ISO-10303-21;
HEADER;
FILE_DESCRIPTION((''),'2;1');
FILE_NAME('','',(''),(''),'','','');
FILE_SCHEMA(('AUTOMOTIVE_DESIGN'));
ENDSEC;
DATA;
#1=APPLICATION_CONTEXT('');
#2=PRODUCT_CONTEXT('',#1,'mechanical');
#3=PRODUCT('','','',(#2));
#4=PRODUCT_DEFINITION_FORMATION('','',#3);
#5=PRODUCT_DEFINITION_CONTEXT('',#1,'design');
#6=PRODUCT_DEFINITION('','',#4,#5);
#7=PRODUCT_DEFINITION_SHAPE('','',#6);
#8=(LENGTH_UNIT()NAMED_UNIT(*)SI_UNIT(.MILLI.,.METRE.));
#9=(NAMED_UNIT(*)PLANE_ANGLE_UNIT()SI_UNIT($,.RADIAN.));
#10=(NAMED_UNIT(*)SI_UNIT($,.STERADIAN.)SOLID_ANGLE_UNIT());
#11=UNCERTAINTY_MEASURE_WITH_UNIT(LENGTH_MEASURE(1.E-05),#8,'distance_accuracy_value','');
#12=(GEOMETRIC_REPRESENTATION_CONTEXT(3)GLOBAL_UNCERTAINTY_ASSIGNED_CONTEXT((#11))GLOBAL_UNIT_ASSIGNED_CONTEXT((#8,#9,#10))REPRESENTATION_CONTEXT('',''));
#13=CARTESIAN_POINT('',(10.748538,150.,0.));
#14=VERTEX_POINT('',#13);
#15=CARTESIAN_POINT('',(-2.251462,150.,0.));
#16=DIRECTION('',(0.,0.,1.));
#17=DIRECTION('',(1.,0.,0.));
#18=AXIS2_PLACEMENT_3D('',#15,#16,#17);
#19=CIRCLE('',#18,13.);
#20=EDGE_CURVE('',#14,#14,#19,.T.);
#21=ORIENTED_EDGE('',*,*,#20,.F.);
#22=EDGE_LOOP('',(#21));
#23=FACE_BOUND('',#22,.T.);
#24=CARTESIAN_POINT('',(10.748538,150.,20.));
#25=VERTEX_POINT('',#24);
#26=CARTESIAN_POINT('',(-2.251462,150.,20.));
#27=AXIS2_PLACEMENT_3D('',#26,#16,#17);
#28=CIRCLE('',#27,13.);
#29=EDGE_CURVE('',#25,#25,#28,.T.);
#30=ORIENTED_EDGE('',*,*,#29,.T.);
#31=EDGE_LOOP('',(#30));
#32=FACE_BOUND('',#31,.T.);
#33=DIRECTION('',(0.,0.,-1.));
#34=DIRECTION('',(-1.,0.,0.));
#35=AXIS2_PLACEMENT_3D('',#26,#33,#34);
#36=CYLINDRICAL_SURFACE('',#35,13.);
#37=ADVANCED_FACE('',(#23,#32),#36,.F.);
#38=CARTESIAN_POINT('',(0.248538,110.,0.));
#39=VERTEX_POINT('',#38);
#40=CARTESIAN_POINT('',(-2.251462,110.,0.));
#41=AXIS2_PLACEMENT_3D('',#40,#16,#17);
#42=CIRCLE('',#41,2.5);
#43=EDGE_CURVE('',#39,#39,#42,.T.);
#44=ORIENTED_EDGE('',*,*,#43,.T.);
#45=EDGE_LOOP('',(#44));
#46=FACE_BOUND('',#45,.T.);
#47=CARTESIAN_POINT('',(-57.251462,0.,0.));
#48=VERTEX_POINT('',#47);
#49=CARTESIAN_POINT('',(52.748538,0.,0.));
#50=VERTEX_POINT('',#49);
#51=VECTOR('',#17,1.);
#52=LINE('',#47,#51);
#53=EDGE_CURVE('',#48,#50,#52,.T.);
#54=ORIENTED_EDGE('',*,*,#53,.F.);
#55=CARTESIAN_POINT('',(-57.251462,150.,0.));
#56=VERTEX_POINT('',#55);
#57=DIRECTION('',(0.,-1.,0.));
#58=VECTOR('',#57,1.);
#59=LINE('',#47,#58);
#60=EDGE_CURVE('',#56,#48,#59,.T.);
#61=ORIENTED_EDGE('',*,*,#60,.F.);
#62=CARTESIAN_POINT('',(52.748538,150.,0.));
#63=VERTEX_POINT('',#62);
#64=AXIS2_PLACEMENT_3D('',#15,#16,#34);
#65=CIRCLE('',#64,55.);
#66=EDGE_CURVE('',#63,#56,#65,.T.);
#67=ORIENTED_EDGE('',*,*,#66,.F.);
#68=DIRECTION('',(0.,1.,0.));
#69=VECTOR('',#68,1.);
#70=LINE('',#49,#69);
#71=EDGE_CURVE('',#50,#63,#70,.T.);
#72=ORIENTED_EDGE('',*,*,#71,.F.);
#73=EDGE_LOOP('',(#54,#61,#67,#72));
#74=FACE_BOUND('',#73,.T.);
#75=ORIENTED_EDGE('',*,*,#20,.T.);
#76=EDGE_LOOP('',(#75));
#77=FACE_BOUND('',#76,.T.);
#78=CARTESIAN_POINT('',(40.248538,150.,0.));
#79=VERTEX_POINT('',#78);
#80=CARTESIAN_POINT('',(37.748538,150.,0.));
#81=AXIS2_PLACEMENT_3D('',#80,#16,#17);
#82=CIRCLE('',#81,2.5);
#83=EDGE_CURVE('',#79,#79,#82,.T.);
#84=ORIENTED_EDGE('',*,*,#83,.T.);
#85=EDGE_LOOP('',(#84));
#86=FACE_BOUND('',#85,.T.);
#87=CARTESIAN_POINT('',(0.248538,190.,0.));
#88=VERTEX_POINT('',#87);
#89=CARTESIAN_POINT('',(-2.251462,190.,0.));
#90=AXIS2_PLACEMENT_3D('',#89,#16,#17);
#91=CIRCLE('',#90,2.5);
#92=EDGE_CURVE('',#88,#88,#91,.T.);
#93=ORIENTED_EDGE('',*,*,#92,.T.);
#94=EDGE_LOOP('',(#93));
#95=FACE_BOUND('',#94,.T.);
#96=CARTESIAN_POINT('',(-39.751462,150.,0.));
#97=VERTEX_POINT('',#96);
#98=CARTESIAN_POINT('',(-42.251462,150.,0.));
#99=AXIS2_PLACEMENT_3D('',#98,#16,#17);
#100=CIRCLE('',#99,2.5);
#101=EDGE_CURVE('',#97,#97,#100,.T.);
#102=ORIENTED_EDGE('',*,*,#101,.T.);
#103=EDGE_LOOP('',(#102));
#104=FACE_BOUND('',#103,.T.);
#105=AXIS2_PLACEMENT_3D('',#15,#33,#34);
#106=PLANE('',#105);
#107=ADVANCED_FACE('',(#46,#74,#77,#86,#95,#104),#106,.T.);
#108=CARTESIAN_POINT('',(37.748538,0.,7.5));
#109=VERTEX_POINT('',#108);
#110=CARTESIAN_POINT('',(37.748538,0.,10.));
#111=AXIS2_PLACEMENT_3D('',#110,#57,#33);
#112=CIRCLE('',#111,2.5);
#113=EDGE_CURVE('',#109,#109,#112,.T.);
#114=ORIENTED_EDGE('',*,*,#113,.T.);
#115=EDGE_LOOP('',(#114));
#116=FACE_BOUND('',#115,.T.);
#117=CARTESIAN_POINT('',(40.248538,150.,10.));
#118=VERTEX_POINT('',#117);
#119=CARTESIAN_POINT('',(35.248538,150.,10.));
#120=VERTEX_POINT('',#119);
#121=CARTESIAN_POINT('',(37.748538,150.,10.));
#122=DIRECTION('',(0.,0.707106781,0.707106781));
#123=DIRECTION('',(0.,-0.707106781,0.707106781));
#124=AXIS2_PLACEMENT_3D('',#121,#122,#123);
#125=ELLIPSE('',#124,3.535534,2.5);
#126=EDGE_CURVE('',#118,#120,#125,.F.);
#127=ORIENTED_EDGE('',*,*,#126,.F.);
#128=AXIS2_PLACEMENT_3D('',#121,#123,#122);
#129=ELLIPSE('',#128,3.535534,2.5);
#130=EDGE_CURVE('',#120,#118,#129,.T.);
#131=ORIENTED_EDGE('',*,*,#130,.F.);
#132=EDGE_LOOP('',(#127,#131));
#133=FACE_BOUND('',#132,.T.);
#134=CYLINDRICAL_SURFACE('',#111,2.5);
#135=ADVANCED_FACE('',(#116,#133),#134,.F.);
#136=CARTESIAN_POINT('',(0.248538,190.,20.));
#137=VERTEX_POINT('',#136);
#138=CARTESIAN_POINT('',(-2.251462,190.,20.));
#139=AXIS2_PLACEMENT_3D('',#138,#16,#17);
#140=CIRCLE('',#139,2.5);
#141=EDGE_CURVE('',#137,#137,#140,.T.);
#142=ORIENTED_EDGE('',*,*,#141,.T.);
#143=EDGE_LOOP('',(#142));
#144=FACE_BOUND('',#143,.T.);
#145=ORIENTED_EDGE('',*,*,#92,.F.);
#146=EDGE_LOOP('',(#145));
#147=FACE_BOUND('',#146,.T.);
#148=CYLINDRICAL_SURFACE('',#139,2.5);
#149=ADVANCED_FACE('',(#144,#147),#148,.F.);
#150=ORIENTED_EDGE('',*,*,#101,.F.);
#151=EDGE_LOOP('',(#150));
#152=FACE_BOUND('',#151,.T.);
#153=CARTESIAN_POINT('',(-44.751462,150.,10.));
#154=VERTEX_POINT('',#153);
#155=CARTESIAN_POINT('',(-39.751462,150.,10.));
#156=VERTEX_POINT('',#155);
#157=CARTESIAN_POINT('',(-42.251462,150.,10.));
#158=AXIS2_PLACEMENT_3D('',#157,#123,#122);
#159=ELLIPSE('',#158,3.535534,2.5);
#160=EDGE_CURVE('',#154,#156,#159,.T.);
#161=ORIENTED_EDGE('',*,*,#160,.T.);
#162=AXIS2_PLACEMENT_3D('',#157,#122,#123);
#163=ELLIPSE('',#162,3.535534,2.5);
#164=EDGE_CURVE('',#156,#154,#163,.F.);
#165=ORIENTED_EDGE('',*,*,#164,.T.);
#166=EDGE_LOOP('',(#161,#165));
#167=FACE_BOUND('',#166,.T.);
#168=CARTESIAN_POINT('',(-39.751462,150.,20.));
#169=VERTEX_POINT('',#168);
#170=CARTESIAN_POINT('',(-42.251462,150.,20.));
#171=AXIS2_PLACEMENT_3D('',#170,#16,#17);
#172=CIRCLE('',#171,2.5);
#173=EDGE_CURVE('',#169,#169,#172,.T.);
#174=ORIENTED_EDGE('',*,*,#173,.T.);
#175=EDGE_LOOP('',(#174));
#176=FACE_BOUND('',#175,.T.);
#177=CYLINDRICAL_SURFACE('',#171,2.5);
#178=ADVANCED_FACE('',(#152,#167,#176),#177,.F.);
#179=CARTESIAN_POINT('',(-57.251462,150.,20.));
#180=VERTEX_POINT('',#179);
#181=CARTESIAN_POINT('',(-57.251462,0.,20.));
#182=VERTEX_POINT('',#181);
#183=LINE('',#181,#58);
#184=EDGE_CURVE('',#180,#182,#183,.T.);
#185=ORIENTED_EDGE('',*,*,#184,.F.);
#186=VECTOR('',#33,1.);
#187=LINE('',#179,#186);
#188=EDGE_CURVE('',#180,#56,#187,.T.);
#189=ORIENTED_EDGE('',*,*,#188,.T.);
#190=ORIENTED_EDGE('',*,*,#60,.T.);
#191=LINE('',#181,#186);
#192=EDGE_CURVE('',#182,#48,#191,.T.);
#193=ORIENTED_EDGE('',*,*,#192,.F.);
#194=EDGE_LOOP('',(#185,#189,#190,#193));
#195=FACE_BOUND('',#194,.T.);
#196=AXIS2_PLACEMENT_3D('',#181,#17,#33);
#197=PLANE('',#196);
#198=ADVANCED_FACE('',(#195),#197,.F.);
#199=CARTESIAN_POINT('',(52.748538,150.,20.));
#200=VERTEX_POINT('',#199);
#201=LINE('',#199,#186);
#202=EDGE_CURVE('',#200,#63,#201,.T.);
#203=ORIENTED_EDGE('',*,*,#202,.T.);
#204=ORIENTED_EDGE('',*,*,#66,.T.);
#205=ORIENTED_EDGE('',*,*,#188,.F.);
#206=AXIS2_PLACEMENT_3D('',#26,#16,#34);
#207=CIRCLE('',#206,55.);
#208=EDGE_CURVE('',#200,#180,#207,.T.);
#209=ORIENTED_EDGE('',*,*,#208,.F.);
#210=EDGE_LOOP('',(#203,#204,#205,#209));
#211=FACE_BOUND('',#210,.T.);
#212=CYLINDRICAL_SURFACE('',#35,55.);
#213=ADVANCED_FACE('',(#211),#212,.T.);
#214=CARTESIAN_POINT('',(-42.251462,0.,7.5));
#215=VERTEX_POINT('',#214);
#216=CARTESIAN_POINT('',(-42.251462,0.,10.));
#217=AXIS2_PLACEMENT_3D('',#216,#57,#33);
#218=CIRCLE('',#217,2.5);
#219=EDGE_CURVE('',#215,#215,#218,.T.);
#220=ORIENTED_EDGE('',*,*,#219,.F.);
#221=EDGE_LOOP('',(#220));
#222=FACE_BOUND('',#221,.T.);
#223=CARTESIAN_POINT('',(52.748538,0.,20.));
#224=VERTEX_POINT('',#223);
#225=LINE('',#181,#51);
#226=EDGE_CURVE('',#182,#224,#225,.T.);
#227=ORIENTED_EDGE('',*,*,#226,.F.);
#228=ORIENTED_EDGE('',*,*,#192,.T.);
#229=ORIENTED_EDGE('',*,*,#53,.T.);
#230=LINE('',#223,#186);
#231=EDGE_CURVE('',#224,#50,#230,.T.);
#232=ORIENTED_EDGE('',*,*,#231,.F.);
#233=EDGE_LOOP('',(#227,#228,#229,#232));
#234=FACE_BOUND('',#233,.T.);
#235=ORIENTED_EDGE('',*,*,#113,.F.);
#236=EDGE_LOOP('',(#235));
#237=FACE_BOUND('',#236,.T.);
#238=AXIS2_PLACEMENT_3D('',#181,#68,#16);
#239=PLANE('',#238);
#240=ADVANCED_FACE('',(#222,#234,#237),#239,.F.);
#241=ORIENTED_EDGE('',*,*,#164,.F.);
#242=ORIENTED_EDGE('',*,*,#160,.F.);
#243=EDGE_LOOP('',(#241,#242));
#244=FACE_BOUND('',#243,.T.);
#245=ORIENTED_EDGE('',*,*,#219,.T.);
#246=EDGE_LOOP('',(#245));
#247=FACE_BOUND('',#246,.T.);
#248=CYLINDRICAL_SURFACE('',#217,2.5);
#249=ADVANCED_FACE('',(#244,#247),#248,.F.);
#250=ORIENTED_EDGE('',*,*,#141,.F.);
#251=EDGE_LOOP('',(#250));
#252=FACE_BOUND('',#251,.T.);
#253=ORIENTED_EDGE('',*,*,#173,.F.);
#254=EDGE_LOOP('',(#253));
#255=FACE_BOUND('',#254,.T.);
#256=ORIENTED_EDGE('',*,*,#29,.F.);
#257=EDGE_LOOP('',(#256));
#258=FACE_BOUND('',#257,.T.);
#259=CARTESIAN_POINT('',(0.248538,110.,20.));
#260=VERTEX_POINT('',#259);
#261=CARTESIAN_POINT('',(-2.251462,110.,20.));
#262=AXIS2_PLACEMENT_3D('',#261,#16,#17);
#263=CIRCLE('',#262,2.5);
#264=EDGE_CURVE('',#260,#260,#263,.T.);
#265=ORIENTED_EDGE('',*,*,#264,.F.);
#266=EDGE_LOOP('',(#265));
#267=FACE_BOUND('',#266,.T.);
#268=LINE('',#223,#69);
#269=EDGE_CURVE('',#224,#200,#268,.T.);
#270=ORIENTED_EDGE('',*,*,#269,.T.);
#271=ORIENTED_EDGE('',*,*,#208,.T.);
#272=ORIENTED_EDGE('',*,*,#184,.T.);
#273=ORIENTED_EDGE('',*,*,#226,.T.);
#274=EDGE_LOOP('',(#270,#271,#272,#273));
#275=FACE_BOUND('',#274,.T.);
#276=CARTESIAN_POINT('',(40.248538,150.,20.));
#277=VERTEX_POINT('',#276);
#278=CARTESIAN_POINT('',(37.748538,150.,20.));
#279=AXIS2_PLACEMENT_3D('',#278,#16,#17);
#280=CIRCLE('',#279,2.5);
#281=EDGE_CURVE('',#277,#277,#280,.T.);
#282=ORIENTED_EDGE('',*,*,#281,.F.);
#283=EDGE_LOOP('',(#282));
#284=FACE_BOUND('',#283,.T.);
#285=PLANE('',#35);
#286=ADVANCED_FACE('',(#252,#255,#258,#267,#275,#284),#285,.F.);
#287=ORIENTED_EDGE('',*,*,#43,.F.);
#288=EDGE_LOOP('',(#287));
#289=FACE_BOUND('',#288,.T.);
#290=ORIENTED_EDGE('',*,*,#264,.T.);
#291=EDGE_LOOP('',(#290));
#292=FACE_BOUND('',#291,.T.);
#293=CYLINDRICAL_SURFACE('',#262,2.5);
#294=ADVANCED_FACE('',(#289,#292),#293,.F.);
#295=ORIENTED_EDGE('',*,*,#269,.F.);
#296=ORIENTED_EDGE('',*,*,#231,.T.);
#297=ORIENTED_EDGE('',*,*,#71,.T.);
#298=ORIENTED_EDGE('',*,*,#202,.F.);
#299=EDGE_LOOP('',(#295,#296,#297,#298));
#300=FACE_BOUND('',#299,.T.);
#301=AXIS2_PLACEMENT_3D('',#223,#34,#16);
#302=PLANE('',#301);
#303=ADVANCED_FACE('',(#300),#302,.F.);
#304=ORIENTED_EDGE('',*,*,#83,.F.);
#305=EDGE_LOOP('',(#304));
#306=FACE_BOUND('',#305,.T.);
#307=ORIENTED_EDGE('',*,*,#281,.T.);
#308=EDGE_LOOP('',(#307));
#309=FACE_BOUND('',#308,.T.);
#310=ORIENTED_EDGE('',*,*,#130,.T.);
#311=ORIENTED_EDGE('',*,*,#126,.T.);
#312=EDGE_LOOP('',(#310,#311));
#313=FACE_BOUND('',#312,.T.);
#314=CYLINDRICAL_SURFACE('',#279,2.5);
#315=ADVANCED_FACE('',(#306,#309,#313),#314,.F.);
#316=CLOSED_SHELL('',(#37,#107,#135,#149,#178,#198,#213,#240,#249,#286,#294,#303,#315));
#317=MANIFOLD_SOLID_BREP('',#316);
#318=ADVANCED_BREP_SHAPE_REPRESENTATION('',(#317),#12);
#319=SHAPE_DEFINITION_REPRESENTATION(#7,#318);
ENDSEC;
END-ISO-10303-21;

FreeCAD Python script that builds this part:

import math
import FreeCAD as App
import Part
import Sketcher

V = App.Vector
Q = App.Units.Quantity

doc = App.newDocument("Part")
body = doc.addObject("PartDesign::Body", "Body")

sketch1 = body.newObject("Sketcher::SketchObject", "Sketch")
sketch1.AttachmentSupport = (doc.getObject("XY_Plane"), [""])
sketch1.MapMode = "FlatFace"
sketch1.addGeometry([
    Part.LineSegment(V(-57, 0, 0), V(53, 0, 0)),
    Part.LineSegment(V(53, 0, 0), V(53, 150, 0)),
    Part.ArcOfCircle(Part.Circle(V(-2, 150, 0), V(0, 0, 1), 55), math.radians(0), math.radians(180)),
    Part.LineSegment(V(-57, 150, 0), V(-57, 0, 0)),
    Part.Circle(V(-2, 150, 0), V(0, 0, 1), 13),
], False)
sketch1.addConstraint([
    Sketcher.Constraint("Coincident", 0, 2, 1, 1),
    Sketcher.Constraint("Tangent", 1, 2, 2, 1),
    Sketcher.Constraint("Tangent", 2, 2, 3, 1),
    Sketcher.Constraint("Coincident", 3, 2, 0, 1),
    Sketcher.Constraint("Horizontal", 0),
    Sketcher.Constraint("Vertical", 1),
    Sketcher.Constraint("Vertical", 3),
    Sketcher.Constraint("Coincident", 4, 3, 2, 3),
    Sketcher.Constraint("PointOnObject", 0, 2, -1),
    Sketcher.Constraint("Diameter", 4, Q("26 mm")),
    Sketcher.Constraint("Radius", 2, Q("55 mm")),
    Sketcher.Constraint("DistanceY", 1, 1, 1, 2, Q("150 mm")),
    Sketcher.Constraint("DistanceX", 2, 3, -1, 1, Q("2.251462 mm")),
])
pad1 = body.newObject("PartDesign::Pad", "Pad")
pad1.Profile = sketch1
pad1.Length = 20

sketch2 = body.newObject("Sketcher::SketchObject", "Sketch001")
sketch2.AttachmentSupport = (doc.getObject("XY_Plane"), [""])
sketch2.MapMode = "FlatFace"
sketch2.AttachmentOffset = App.Placement(V(0, 0, 20), App.Rotation())
sketch2.addGeometry([
    Part.Circle(V(-2.3, 190, 0), V(0, 0, 1), 2.5),
    Part.Circle(V(37.7, 150, 0), V(0, 0, 1), 2.5),
    Part.Circle(V(-2.3, 110, 0), V(0, 0, 1), 2.5),
    Part.Circle(V(-42.3, 150, 0), V(0, 0, 1), 2.5),
], False)
sketch2.addConstraint([
    Sketcher.Constraint("Equal", 0, 1),
    Sketcher.Constraint("Equal", 1, 2),
    Sketcher.Constraint("Equal", 2, 3),
    Sketcher.Constraint("Horizontal", 1, 3, 3, 3),
    Sketcher.Constraint("Vertical", 0, 3, 2, 3),
    Sketcher.Constraint("Diameter", 0, Q("5 mm")),
    Sketcher.Constraint("DistanceY", -1, 1, 0, 3, Q("190 mm")),
    Sketcher.Constraint("DistanceY", -1, 1, 1, 3, Q("150 mm")),
    Sketcher.Constraint("DistanceY", -1, 1, 2, 3, Q("110 mm")),
    Sketcher.Constraint("DistanceX", 0, 3, 1, 3, Q("40 mm")),
    Sketcher.Constraint("DistanceX", 3, 3, 0, 3, Q("40 mm")),
    Sketcher.Constraint("DistanceX", 0, 3, -1, 1, Q("2.251462 mm")),
])
doc.recompute()
hole = body.newObject("PartDesign::Hole", "Hole")
hole.Profile = sketch2
hole.ThreadType = "None"
hole.Diameter = 5
hole.DepthType = "ThroughAll"

sketch3 = body.newObject("Sketcher::SketchObject", "Sketch002")
sketch3.AttachmentSupport = (doc.getObject("XZ_Plane"), [""])
sketch3.MapMode = "FlatFace"
sketch3.addGeometry(Part.Circle(V(-42.3, 10, 0), V(0, 0, 1), 2.5), False)
sketch3.addConstraint([
    Sketcher.Constraint("Diameter", 0, Q("5 mm")),
    Sketcher.Constraint("DistanceY", -1, 1, 0, 3, Q("10 mm")),
    Sketcher.Constraint("DistanceX", 0, 3, -1, 1, Q("42.251462 mm")),
])
pocket1 = body.newObject("PartDesign::Pocket", "Pocket")
pocket1.Profile = sketch3
pocket1.Length = 150

sketch4 = body.newObject("Sketcher::SketchObject", "Sketch003")
sketch4.AttachmentSupport = (doc.getObject("XZ_Plane"), [""])
sketch4.MapMode = "FlatFace"
sketch4.addGeometry(Part.Circle(V(37.7, 10, 0), V(0, 0, 1), 2.5), False)
sketch4.addConstraint([
    Sketcher.Constraint("Diameter", 0, Q("5 mm")),
    Sketcher.Constraint("DistanceY", -1, 1, 0, 3, Q("10 mm")),
    Sketcher.Constraint("DistanceX", -1, 1, 0, 3, Q("37.748538 mm")),
])
pocket2 = body.newObject("PartDesign::Pocket", "Pocket001")
pocket2.Profile = sketch4
pocket2.Length = 150

doc.recompute()
